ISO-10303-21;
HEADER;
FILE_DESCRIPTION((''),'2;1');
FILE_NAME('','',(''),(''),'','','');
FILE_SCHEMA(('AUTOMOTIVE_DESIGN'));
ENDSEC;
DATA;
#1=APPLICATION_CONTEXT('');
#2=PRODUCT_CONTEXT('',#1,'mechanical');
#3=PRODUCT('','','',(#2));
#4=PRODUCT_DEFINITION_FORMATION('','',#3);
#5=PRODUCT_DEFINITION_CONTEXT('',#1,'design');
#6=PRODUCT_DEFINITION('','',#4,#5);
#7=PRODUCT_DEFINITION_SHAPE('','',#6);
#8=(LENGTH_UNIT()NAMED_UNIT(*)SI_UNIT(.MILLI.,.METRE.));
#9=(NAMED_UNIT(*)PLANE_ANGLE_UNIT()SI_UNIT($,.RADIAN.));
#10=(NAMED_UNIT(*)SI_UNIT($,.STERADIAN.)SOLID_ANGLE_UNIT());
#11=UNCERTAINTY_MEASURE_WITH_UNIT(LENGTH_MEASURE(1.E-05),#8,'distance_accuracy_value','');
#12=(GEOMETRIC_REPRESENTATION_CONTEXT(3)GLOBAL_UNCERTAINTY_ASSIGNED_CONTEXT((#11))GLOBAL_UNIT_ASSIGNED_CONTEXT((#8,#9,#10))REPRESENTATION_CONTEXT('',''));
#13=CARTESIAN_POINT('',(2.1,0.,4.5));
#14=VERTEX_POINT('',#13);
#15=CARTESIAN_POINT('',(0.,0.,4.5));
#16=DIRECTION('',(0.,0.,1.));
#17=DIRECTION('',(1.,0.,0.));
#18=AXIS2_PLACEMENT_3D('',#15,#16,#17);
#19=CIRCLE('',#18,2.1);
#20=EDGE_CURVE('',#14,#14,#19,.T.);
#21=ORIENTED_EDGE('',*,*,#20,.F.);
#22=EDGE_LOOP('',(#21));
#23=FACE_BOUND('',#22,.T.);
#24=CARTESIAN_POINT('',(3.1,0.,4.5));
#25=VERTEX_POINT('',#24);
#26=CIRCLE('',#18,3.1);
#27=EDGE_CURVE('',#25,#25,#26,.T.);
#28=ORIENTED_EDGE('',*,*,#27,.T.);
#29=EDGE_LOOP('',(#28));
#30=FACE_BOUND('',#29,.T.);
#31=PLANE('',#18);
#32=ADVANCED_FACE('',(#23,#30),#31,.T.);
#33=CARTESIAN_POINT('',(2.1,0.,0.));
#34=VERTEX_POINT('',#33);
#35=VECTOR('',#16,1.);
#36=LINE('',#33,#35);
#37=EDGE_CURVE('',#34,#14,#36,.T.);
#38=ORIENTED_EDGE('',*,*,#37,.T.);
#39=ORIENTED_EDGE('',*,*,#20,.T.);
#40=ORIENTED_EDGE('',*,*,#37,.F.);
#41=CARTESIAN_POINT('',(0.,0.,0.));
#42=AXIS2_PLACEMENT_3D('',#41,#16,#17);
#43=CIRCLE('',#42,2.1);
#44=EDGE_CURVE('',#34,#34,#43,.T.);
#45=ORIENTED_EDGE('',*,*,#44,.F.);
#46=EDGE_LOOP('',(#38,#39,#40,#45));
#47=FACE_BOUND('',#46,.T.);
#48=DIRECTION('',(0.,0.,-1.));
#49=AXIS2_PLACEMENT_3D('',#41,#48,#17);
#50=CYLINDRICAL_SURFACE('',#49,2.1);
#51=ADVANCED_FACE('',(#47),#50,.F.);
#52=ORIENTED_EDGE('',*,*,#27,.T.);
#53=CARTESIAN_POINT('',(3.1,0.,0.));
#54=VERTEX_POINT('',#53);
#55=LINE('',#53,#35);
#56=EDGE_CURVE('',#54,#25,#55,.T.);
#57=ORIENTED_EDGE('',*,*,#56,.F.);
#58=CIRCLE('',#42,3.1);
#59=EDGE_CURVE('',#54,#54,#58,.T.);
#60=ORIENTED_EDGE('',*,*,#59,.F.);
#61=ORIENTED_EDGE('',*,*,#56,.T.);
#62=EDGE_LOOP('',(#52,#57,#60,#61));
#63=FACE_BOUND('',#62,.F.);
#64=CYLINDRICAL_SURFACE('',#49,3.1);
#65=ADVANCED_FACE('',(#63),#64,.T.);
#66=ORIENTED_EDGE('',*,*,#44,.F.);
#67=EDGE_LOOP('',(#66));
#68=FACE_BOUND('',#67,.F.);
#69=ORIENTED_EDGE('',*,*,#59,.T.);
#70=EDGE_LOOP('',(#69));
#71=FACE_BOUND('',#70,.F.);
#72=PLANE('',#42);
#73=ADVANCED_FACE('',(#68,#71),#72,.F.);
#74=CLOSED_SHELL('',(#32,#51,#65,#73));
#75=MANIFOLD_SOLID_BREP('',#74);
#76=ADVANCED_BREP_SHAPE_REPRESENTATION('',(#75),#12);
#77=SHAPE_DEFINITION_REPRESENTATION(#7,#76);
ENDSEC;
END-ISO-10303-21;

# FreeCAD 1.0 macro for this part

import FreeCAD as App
import Part
import Sketcher

doc = App.newDocument("Part")
params = doc.addObject("Spreadsheet::Sheet", "Params")
for row, (alias, value) in enumerate([
    ("sketch1_diameter", "4.2 mm"),
    ("sketch1_diameter2", "6.2 mm"),
    ("pad1_length", "4.5 mm"),
], start=1):
    params.set(f"A{row}", alias)
    params.set(f"B{row}", "=" + value)
    params.setAlias(f"B{row}", alias)

body = doc.addObject("PartDesign::Body", "Body")

# Sketch on XY plane
sketch1 = body.newObject("Sketcher::SketchObject", "Sketch")
sketch1.AttachmentSupport = (doc.getObject("XY_Plane"), [""])
sketch1.MapMode = "FlatFace"
sketch1.addGeometry(Part.Circle(App.Vector(0, 0, 0), App.Vector(0, 0, 1), 3.1), False)
sketch1.addGeometry(Part.Circle(App.Vector(0, 0, 0), App.Vector(0, 0, 1), 2.1), False)
sketch1.addConstraint(Sketcher.Constraint("Coincident", 0, 3, -1, 1))
sketch1.addConstraint(Sketcher.Constraint("Coincident", 1, 3, -1, 1))
sketch1.addConstraint(Sketcher.Constraint("Diameter", 1, 4.2))
sketch1.addConstraint(Sketcher.Constraint("Diameter", 0, 6.2))
sketch1.setExpression("Constraints[2]", "Params.sketch1_diameter")
sketch1.setExpression("Constraints[3]", "Params.sketch1_diameter2")
pad1 = body.newObject("PartDesign::Pad", "Pad")
pad1.Profile = sketch1
pad1.setExpression("Length", "Params.pad1_length")

doc.recompute()
